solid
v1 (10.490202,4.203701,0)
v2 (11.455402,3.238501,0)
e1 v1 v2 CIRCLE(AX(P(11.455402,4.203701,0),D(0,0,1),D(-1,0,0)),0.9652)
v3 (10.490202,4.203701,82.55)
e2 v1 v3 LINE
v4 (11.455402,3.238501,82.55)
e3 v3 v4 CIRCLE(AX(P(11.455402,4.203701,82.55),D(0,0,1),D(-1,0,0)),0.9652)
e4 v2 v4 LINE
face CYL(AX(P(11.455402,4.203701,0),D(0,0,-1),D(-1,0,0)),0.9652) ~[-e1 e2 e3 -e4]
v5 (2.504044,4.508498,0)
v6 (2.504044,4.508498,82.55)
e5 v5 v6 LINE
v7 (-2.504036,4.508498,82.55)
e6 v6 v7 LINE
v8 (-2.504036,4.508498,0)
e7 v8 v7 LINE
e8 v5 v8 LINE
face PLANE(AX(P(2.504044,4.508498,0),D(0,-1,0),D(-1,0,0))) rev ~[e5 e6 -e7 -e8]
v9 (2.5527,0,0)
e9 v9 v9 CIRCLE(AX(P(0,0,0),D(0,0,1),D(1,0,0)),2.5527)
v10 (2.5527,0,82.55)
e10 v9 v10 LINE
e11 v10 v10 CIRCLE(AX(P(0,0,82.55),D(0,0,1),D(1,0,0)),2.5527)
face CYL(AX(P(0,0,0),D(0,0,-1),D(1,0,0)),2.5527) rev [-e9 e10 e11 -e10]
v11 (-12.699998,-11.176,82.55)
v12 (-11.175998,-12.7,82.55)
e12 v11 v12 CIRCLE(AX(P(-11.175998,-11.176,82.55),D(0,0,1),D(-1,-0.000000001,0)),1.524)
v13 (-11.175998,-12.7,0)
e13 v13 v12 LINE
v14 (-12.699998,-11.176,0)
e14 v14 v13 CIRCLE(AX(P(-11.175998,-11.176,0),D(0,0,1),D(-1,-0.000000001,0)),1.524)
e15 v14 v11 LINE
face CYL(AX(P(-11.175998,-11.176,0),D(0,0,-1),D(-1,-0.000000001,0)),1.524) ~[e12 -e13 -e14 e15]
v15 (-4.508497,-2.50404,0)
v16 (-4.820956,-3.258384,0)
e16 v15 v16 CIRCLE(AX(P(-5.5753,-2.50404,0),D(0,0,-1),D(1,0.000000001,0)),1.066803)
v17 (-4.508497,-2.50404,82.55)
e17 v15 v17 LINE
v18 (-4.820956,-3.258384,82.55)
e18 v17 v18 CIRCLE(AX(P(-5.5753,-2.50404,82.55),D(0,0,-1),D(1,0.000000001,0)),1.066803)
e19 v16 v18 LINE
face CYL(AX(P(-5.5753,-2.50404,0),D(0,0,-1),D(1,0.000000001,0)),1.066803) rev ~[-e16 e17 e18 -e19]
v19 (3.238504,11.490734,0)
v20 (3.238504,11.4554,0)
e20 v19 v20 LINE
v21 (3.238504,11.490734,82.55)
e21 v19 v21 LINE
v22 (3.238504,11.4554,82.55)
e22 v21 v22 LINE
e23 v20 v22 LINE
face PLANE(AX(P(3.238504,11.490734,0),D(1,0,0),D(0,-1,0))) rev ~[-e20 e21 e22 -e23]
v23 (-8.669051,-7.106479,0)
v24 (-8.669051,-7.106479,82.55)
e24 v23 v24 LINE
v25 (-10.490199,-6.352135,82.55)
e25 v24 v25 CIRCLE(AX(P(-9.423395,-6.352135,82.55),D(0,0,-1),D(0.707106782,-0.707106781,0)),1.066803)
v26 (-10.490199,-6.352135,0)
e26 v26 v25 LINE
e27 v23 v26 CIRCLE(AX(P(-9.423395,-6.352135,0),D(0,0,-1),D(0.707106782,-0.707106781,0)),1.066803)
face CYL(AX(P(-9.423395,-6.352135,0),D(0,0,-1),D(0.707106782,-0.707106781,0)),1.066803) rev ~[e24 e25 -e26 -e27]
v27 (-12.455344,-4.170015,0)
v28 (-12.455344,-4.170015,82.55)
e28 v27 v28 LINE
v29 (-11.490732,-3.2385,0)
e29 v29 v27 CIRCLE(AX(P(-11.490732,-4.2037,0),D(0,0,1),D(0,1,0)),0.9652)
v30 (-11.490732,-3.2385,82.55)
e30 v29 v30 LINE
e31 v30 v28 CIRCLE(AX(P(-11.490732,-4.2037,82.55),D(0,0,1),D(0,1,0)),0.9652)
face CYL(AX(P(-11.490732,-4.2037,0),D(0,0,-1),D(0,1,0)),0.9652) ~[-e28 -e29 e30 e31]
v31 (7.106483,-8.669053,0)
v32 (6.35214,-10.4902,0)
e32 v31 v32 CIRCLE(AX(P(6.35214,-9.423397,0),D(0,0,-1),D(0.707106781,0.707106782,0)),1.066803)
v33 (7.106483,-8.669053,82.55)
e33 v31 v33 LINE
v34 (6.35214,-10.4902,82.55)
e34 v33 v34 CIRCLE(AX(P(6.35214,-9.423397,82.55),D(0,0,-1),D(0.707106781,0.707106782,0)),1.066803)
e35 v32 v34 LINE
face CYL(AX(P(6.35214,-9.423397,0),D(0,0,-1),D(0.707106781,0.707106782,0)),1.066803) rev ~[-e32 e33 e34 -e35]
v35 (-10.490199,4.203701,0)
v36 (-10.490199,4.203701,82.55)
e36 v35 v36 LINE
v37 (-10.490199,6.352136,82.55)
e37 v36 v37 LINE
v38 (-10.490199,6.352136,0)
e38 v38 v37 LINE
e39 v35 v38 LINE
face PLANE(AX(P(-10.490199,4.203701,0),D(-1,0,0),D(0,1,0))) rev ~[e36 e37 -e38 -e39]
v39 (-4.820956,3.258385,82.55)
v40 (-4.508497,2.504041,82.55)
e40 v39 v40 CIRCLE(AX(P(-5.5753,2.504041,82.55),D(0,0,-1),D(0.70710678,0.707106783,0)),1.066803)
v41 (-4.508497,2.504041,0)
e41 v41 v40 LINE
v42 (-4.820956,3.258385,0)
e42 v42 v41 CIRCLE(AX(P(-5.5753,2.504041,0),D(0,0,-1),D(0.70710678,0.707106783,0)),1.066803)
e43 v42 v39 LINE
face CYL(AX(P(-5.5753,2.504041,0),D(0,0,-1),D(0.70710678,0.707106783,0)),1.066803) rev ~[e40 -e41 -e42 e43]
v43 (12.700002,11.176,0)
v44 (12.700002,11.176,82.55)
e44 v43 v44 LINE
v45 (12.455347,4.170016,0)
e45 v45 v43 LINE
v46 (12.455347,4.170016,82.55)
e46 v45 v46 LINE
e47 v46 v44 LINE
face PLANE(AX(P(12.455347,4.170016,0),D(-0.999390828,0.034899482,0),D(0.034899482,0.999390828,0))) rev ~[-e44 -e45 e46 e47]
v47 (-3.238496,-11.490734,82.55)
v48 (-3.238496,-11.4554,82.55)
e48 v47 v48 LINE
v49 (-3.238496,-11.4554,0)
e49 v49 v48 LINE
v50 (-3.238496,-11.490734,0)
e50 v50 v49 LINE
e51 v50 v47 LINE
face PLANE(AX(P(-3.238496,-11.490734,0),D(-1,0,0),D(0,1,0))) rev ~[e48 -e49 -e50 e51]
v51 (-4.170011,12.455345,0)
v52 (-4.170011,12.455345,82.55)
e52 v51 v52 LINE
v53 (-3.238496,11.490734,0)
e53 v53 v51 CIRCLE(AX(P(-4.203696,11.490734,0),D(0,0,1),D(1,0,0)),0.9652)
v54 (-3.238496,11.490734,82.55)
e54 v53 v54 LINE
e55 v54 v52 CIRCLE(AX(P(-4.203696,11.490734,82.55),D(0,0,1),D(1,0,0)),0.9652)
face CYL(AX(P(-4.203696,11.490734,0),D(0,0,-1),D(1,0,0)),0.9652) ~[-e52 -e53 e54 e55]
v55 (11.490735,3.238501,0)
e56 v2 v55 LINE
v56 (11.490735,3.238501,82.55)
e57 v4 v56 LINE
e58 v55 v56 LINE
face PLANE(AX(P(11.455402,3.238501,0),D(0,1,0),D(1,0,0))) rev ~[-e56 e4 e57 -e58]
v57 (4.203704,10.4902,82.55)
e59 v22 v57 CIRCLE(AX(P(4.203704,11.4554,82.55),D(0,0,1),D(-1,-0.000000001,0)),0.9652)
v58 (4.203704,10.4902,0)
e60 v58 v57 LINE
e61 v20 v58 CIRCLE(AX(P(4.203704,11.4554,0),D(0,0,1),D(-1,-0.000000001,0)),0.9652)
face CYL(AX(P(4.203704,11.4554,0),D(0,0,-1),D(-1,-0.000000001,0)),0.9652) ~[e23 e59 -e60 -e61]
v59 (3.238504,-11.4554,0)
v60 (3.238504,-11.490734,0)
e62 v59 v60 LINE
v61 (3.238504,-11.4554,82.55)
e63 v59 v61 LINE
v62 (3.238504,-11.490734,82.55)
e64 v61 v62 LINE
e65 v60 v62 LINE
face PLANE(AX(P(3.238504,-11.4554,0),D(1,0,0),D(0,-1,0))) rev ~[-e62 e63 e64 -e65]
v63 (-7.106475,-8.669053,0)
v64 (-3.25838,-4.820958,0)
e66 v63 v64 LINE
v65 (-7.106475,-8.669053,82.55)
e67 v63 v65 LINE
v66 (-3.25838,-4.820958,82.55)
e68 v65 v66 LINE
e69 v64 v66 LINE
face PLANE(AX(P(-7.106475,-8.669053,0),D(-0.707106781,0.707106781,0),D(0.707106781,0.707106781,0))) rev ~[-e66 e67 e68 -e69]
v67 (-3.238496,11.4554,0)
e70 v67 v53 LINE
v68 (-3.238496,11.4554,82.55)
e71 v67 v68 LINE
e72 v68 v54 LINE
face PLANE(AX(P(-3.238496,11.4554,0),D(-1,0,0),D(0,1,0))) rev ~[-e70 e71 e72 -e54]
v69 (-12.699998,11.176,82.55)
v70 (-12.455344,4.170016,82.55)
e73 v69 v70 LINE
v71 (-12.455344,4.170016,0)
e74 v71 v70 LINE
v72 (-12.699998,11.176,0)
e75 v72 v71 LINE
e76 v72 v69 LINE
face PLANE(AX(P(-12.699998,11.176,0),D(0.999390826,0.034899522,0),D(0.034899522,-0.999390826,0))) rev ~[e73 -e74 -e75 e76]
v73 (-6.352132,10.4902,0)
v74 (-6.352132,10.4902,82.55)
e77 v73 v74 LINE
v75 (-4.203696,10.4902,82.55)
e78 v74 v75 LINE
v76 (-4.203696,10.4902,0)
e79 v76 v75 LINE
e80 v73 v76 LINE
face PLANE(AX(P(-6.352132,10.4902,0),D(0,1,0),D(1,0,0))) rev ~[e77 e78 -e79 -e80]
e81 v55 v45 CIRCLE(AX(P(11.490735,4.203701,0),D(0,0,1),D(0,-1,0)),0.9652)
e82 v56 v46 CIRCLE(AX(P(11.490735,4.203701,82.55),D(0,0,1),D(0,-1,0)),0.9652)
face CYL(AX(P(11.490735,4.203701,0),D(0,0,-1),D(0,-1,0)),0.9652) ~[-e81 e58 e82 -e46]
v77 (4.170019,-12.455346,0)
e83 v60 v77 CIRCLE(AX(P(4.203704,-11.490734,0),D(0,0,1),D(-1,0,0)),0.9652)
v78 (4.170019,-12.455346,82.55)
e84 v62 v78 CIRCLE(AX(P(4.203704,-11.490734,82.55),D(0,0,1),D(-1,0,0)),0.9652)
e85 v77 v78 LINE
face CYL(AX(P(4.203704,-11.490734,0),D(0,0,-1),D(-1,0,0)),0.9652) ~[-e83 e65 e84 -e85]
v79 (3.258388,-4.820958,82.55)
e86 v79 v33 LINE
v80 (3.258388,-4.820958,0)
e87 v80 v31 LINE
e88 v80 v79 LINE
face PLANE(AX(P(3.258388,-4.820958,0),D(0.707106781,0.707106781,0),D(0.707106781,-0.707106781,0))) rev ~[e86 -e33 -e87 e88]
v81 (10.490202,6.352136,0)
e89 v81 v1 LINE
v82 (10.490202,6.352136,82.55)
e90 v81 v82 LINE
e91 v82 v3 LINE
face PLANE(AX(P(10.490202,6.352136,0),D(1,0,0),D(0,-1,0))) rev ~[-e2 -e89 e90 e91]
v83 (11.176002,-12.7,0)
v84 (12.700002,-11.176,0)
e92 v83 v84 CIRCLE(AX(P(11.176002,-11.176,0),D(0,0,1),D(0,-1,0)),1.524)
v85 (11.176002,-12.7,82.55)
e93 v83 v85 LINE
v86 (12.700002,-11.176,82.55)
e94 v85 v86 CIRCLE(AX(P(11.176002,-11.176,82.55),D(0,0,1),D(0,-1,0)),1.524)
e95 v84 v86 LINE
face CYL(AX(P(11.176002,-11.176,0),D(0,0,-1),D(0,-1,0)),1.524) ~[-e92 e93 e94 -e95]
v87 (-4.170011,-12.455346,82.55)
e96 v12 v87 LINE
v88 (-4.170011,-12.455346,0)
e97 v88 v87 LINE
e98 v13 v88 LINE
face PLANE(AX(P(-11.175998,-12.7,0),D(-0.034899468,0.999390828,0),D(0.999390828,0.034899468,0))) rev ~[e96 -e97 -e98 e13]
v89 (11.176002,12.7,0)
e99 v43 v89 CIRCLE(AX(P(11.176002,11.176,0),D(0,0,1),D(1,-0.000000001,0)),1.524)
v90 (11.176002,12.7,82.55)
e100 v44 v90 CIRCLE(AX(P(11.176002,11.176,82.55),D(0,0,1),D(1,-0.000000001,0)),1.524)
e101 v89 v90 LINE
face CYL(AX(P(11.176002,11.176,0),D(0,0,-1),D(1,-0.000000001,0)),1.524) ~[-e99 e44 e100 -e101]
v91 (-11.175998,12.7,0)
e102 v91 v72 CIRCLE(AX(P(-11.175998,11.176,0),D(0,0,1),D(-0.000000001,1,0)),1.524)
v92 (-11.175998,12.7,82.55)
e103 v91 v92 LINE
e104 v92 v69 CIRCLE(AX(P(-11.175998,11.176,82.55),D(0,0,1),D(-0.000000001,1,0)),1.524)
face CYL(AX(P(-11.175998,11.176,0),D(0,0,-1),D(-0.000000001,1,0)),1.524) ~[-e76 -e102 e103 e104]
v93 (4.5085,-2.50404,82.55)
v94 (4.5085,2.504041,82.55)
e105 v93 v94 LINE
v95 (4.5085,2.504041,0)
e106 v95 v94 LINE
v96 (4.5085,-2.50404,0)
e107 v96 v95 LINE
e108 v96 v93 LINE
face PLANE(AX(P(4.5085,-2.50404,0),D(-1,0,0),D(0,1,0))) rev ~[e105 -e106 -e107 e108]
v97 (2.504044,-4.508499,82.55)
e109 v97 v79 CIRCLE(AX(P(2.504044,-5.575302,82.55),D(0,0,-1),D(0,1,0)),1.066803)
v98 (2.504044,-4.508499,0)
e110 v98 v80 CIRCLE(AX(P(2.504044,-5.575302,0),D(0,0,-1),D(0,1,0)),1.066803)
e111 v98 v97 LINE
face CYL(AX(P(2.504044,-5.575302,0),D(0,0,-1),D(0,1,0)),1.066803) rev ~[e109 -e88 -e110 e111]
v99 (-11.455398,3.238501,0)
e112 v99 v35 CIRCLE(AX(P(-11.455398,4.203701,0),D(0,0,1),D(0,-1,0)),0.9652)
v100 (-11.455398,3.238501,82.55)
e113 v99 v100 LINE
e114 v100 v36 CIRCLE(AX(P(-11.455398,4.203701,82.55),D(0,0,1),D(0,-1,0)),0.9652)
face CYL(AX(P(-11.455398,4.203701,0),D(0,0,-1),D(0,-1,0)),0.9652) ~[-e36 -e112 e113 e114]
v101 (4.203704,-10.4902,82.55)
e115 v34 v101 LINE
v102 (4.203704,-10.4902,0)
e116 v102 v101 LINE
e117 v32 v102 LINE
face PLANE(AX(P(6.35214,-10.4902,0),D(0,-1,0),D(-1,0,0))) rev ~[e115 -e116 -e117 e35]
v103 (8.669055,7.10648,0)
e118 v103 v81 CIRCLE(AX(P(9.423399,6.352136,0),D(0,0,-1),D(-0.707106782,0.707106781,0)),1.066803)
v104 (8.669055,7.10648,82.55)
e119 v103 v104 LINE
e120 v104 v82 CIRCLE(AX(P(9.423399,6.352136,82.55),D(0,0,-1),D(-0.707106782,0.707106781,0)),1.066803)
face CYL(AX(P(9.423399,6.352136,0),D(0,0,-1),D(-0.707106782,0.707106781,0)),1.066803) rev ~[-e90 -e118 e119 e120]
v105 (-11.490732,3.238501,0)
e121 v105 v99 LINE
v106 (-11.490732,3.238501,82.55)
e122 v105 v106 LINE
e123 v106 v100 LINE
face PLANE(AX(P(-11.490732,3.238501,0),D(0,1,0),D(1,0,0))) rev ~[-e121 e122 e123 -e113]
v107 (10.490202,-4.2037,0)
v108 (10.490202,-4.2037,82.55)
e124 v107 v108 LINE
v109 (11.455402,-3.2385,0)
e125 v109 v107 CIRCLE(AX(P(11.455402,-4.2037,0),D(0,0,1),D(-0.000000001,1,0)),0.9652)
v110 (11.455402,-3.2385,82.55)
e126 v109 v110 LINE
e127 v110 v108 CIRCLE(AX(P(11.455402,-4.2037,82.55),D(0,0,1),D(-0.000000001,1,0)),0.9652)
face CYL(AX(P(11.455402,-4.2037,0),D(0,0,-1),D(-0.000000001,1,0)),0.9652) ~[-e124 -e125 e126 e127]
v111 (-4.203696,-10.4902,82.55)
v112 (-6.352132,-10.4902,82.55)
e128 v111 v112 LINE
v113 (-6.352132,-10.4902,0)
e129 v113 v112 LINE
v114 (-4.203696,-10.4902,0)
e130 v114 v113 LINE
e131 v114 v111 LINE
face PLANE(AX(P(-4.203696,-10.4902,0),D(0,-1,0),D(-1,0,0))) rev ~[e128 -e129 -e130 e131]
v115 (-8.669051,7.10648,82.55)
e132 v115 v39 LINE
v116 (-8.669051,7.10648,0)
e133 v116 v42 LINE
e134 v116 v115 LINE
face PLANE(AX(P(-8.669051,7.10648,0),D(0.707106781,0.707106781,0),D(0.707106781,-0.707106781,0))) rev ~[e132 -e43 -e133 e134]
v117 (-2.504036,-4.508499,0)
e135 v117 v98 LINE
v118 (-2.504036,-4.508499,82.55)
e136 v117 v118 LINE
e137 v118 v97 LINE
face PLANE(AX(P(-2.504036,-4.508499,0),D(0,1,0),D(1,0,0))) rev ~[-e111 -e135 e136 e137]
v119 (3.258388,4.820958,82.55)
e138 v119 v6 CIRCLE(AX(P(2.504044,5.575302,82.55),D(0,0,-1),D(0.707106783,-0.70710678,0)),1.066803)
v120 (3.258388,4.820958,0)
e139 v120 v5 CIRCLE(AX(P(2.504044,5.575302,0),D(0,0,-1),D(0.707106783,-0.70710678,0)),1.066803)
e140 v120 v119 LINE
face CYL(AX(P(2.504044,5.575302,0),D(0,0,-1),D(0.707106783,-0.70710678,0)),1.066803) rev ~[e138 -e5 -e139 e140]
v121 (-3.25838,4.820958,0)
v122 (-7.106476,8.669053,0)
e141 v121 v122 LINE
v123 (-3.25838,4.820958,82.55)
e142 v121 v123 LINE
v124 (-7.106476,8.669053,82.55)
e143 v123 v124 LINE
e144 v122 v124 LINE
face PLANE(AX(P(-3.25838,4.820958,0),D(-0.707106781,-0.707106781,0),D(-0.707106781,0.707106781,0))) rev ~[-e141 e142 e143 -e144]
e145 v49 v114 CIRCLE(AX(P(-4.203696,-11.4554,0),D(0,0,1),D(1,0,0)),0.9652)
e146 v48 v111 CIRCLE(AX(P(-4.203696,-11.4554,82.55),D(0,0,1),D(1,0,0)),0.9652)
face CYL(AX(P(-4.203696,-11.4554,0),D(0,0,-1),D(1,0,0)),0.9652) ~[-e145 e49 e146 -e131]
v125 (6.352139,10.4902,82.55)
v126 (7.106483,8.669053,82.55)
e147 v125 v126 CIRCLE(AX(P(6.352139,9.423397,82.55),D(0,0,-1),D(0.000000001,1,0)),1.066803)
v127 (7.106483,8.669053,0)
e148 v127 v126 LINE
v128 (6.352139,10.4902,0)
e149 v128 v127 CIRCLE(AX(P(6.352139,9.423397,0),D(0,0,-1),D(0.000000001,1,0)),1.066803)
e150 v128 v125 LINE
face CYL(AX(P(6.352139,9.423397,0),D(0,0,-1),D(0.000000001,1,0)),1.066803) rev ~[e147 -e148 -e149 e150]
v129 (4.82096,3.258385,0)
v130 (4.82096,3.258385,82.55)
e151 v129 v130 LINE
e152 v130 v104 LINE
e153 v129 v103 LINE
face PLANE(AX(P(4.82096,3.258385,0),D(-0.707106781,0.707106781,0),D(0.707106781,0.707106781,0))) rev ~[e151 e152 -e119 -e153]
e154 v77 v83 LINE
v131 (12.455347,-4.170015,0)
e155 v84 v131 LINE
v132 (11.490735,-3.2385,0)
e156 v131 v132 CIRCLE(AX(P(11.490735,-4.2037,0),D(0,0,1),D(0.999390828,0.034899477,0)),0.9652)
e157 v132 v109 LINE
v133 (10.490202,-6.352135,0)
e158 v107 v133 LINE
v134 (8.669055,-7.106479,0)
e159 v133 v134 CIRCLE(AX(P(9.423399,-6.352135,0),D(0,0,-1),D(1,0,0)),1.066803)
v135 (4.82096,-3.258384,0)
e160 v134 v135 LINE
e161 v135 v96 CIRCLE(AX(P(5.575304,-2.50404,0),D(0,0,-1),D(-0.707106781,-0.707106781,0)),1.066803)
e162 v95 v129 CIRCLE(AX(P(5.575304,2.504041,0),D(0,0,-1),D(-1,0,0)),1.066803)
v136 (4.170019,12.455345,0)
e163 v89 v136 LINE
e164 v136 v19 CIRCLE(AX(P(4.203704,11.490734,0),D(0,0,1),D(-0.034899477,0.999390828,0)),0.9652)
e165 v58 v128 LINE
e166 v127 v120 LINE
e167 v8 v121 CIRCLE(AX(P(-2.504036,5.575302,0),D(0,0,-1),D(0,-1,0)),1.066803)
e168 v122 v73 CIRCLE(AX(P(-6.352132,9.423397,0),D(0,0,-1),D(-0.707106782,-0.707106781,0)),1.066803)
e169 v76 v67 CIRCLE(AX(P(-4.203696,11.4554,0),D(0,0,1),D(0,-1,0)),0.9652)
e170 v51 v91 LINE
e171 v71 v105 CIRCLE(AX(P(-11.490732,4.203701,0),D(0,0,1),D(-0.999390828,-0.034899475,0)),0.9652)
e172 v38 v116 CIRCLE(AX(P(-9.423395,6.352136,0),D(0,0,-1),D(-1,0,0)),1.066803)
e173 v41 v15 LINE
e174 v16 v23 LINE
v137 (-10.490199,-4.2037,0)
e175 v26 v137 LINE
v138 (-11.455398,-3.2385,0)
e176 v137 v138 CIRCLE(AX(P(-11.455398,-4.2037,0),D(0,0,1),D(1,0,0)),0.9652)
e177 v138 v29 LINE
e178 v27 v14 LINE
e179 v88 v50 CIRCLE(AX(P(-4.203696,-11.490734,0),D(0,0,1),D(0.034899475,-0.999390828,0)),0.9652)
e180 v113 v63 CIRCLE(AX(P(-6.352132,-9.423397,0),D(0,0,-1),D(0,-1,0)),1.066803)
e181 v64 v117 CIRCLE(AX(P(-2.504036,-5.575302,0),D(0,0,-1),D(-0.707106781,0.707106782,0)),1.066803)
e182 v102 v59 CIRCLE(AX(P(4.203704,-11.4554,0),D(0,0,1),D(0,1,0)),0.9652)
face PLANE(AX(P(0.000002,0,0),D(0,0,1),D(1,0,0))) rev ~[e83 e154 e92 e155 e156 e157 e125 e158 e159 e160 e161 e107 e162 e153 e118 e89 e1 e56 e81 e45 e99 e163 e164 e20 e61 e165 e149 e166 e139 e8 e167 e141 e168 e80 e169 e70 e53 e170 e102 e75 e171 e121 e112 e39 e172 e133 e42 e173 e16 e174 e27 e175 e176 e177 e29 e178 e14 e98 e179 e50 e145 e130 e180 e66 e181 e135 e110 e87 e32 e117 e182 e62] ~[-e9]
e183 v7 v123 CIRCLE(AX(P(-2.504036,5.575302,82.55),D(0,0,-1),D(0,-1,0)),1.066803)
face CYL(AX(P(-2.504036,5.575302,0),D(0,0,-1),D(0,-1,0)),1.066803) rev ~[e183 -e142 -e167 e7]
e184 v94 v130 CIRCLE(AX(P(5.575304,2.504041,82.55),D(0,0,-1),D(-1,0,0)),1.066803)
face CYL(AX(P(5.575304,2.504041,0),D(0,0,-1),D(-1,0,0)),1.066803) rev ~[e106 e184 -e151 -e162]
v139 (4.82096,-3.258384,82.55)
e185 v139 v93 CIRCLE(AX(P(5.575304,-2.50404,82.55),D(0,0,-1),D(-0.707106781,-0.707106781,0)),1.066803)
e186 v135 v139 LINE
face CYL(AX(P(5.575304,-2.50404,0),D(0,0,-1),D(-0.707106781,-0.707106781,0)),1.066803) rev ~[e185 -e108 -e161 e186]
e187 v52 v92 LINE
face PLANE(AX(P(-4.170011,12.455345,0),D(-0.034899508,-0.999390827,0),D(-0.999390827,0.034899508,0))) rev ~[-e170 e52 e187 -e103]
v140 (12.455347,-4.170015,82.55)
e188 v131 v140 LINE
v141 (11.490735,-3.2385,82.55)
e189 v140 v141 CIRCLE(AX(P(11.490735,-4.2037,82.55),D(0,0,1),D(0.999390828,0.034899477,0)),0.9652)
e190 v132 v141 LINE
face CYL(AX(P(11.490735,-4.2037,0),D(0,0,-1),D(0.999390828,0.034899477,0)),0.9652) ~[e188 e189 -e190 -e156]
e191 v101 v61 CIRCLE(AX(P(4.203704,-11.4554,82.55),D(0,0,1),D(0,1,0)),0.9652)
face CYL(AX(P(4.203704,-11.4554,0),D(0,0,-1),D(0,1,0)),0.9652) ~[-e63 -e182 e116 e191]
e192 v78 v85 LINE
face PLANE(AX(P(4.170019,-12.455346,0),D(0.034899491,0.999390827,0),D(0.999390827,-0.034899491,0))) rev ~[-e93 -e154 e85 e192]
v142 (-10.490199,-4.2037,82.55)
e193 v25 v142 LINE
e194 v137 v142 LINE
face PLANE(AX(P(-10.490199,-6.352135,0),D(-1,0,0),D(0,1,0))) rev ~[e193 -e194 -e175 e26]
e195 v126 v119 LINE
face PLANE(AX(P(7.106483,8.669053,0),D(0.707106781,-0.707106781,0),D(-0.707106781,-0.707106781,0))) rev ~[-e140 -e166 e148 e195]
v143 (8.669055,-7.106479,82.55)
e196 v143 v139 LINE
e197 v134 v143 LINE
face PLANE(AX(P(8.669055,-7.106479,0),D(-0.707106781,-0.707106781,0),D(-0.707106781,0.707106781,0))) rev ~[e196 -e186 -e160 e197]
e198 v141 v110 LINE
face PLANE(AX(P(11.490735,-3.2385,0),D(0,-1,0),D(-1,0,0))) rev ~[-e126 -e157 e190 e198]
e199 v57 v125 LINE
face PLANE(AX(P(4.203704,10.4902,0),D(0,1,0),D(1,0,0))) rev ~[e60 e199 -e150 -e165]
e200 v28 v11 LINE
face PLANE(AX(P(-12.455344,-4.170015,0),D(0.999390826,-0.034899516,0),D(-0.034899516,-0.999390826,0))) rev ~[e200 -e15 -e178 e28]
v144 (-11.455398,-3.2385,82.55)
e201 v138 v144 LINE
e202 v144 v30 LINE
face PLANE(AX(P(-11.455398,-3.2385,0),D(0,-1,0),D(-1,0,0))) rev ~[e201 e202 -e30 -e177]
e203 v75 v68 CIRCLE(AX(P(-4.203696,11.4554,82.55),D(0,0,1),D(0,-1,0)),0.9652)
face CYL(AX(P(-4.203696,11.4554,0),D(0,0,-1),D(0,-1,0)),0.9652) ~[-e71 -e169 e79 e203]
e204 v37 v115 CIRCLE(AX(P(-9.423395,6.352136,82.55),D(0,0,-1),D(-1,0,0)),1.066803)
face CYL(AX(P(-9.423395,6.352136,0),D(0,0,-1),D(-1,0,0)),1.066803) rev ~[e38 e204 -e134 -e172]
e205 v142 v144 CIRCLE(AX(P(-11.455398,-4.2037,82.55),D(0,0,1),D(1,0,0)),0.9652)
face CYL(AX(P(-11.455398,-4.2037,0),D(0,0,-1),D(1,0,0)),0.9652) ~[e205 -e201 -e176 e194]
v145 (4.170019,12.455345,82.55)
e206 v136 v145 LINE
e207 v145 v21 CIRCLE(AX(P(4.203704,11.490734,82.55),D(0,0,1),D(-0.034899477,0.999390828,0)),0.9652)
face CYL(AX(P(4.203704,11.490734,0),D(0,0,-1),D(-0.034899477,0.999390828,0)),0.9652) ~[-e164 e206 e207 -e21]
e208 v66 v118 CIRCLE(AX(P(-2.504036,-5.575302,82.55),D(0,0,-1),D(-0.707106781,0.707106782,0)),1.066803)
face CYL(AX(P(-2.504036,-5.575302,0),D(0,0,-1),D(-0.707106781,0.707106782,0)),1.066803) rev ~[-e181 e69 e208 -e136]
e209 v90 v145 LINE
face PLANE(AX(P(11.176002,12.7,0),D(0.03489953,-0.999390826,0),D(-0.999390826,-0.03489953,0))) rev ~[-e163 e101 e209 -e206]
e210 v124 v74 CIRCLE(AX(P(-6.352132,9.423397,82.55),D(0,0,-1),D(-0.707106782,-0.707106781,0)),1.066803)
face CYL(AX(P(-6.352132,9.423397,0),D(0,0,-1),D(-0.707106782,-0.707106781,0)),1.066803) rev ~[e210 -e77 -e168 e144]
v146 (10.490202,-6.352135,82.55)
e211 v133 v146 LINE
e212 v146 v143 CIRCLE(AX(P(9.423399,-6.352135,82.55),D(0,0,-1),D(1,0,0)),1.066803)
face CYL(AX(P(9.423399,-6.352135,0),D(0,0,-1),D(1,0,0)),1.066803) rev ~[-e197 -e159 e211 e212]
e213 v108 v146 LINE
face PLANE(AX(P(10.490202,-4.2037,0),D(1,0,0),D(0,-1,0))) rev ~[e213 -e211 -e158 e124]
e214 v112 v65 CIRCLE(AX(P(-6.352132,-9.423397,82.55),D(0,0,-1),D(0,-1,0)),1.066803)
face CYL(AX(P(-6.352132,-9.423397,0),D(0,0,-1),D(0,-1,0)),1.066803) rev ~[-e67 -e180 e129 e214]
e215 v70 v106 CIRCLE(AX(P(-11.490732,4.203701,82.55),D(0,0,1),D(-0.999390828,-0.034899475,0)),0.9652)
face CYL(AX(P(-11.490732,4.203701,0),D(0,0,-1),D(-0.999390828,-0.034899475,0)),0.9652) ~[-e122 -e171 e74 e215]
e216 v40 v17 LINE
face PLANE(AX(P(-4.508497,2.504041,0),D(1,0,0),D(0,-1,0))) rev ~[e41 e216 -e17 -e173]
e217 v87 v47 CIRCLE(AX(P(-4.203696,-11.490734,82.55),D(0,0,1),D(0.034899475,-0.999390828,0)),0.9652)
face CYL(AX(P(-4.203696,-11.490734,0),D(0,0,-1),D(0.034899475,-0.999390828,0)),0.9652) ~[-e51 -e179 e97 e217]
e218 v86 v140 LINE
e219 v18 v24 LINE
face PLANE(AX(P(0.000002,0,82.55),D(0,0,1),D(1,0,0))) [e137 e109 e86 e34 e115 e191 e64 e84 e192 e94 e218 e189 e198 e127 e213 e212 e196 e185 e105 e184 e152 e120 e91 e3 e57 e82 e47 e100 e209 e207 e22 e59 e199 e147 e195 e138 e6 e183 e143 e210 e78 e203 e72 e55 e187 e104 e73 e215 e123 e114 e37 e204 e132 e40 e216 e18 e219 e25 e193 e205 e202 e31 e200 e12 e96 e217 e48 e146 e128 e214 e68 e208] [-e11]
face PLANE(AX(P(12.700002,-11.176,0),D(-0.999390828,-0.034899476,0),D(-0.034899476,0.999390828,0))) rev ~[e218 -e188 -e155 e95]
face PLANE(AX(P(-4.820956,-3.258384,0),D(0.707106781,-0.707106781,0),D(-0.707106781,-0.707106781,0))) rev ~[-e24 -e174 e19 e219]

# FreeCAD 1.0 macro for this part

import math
import FreeCAD as App
import Part
import Sketcher
Q = App.Units.Quantity

doc = App.newDocument("Part")
body = doc.addObject("PartDesign::Body", "Body")

sketch1 = body.newObject("Sketcher::SketchObject", "Sketch")
sketch1.AttachmentSupport = (doc.getObject("XY_Plane"), [""])
sketch1.MapMode = "FlatFace"
sketch1.addGeometry(Part.LineSegment(App.Vector(3.239, -11.455, 0), App.Vector(3.239, -11.491, 0)), False)
sketch1.addGeometry(Part.ArcOfCircle(Part.Circle(App.Vector(4.204, -11.491, 0), App.Vector(0, 0, 1), 0.965), math.radians(180), math.radians(268)), False)
sketch1.addGeometry(Part.LineSegment(App.Vector(4.17, -12.455, 0), App.Vector(11.176, -12.7, 0)), False)
sketch1.addGeometry(Part.ArcOfCircle(Part.Circle(App.Vector(11.176, -11.176, 0), App.Vector(0, 0, 1), 1.524), math.radians(-90), math.radians(0)), False)
sketch1.addGeometry(Part.LineSegment(App.Vector(12.7, -11.176, 0), App.Vector(12.455, -4.17, 0)), False)
sketch1.addGeometry(Part.ArcOfCircle(Part.Circle(App.Vector(11.491, -4.204, 0), App.Vector(0, 0, 1), 0.965), math.radians(2), math.radians(90)), False)
sketch1.addGeometry(Part.LineSegment(App.Vector(11.491, -3.238, 0), App.Vector(11.455, -3.238, 0)), False)
sketch1.addGeometry(Part.ArcOfCircle(Part.Circle(App.Vector(11.455, -4.204, 0), App.Vector(0, 0, 1), 0.965), math.radians(90), math.radians(180)), False)
sketch1.addGeometry(Part.LineSegment(App.Vector(10.49, -4.204, 0), App.Vector(10.49, -6.352, 0)), False)
sketch1.addGeometry(Part.ArcOfCircle(Part.Circle(App.Vector(9.423, -6.352, 0), App.Vector(0, 0, 1), 1.067), math.radians(-135), math.radians(0)), False)
sketch1.addGeometry(Part.LineSegment(App.Vector(8.669, -7.106, 0), App.Vector(4.821, -3.258, 0)), False)
sketch1.addGeometry(Part.ArcOfCircle(Part.Circle(App.Vector(5.575, -2.504, 0), App.Vector(0, 0, 1), 1.067), math.radians(180), math.radians(225)), False)
sketch1.addGeometry(Part.LineSegment(App.Vector(4.509, -2.504, 0), App.Vector(4.509, 2.504, 0)), False)
sketch1.addGeometry(Part.ArcOfCircle(Part.Circle(App.Vector(5.575, 2.504, 0), App.Vector(0, 0, 1), 1.067), math.radians(135), math.radians(180)), False)
sketch1.addGeometry(Part.LineSegment(App.Vector(4.821, 3.258, 0), App.Vector(8.669, 7.106, 0)), False)
sketch1.addGeometry(Part.ArcOfCircle(Part.Circle(App.Vector(9.423, 6.352, 0), App.Vector(0, 0, 1), 1.067), math.radians(0), math.radians(135)), False)
sketch1.addGeometry(Part.LineSegment(App.Vector(10.49, 6.352, 0), App.Vector(10.49, 4.204, 0)), False)
sketch1.addGeometry(Part.ArcOfCircle(Part.Circle(App.Vector(11.455, 4.204, 0), App.Vector(0, 0, 1), 0.965), math.radians(180), math.radians(270)), False)
sketch1.addGeometry(Part.LineSegment(App.Vector(11.455, 3.239, 0), App.Vector(11.491, 3.239, 0)), False)
sketch1.addGeometry(Part.ArcOfCircle(Part.Circle(App.Vector(11.491, 4.204, 0), App.Vector(0, 0, 1), 0.965), math.radians(-90), math.radians(-2)), False)
sketch1.addGeometry(Part.LineSegment(App.Vector(12.455, 4.17, 0), App.Vector(12.7, 11.176, 0)), False)
sketch1.addGeometry(Part.ArcOfCircle(Part.Circle(App.Vector(11.176, 11.176, 0), App.Vector(0, 0, 1), 1.524), math.radians(0), math.radians(90)), False)
sketch1.addGeometry(Part.LineSegment(App.Vector(11.176, 12.7, 0), App.Vector(4.17, 12.455, 0)), False)
sketch1.addGeometry(Part.ArcOfCircle(Part.Circle(App.Vector(4.204, 11.491, 0), App.Vector(0, 0, 1), 0.965), math.radians(92), math.radians(180)), False)
sketch1.addGeometry(Part.LineSegment(App.Vector(3.239, 11.491, 0), App.Vector(3.239, 11.455, 0)), False)
sketch1.addGeometry(Part.ArcOfCircle(Part.Circle(App.Vector(4.204, 11.455, 0), App.Vector(0, 0, 1), 0.965), math.radians(-180), math.radians(-90)), False)
sketch1.addGeometry(Part.LineSegment(App.Vector(4.204, 10.49, 0), App.Vector(6.352, 10.49, 0)), False)
sketch1.addGeometry(Part.ArcOfCircle(Part.Circle(App.Vector(6.352, 9.423, 0), App.Vector(0, 0, 1), 1.067), math.radians(-45), math.radians(90)), False)
sketch1.addGeometry(Part.LineSegment(App.Vector(7.106, 8.669, 0), App.Vector(3.258, 4.821, 0)), False)
sketch1.addGeometry(Part.ArcOfCircle(Part.Circle(App.Vector(2.504, 5.575, 0), App.Vector(0, 0, 1), 1.067), math.radians(-90), math.radians(-45)), False)
sketch1.addGeometry(Part.LineSegment(App.Vector(2.504, 4.508, 0), App.Vector(-2.504, 4.508, 0)), False)
sketch1.addGeometry(Part.ArcOfCircle(Part.Circle(App.Vector(-2.504, 5.575, 0), App.Vector(0, 0, 1), 1.067), math.radians(-135), math.radians(-90)), False)
sketch1.addGeometry(Part.LineSegment(App.Vector(-3.258, 4.821, 0), App.Vector(-7.106, 8.669, 0)), False)
sketch1.addGeometry(Part.ArcOfCircle(Part.Circle(App.Vector(-6.352, 9.423, 0), App.Vector(0, 0, 1), 1.067), math.radians(90), math.radians(225)), False)
sketch1.addGeometry(Part.LineSegment(App.Vector(-6.352, 10.49, 0), App.Vector(-4.204, 10.49, 0)), False)
sketch1.addGeometry(Part.ArcOfCircle(Part.Circle(App.Vector(-4.204, 11.455, 0), App.Vector(0, 0, 1), 0.965), math.radians(-90), math.radians(0)), False)
sketch1.addGeometry(Part.LineSegment(App.Vector(-3.238, 11.455, 0), App.Vector(-3.238, 11.491, 0)), False)
sketch1.addGeometry(Part.ArcOfCircle(Part.Circle(App.Vector(-4.204, 11.491, 0), App.Vector(0, 0, 1), 0.965), math.radians(0), math.radians(88)), False)
sketch1.addGeometry(Part.LineSegment(App.Vector(-4.17, 12.455, 0), App.Vector(-11.176, 12.7, 0)), False)
sketch1.addGeometry(Part.ArcOfCircle(Part.Circle(App.Vector(-11.176, 11.176, 0), App.Vector(0, 0, 1), 1.524), math.radians(90), math.radians(180)), False)
sketch1.addGeometry(Part.LineSegment(App.Vector(-12.7, 11.176, 0), App.Vector(-12.455, 4.17, 0)), False)
sketch1.addGeometry(Part.ArcOfCircle(Part.Circle(App.Vector(-11.491, 4.204, 0), App.Vector(0, 0, 1), 0.965), math.radians(-178), math.radians(-90)), False)
sketch1.addGeometry(Part.LineSegment(App.Vector(-11.491, 3.239, 0), App.Vector(-11.455, 3.239, 0)), False)
sketch1.addGeometry(Part.ArcOfCircle(Part.Circle(App.Vector(-11.455, 4.204, 0), App.Vector(0, 0, 1), 0.965), math.radians(-90), math.radians(0)), False)
sketch1.addGeometry(Part.LineSegment(App.Vector(-10.49, 4.204, 0), App.Vector(-10.49, 6.352, 0)), False)
sketch1.addGeometry(Part.ArcOfCircle(Part.Circle(App.Vector(-9.423, 6.352, 0), App.Vector(0, 0, 1), 1.067), math.radians(45), math.radians(180)), False)
sketch1.addGeometry(Part.LineSegment(App.Vector(-8.669, 7.106, 0), App.Vector(-4.821, 3.258, 0)), False)
sketch1.addGeometry(Part.ArcOfCircle(Part.Circle(App.Vector(-5.575, 2.504, 0), App.Vector(0, 0, 1), 1.067), math.radians(0), math.radians(45)), False)
sketch1.addGeometry(Part.LineSegment(App.Vector(-4.508, 2.504, 0), App.Vector(-4.508, -2.504, 0)), False)
sketch1.addGeometry(Part.ArcOfCircle(Part.Circle(App.Vector(-5.575, -2.504, 0), App.Vector(0, 0, 1), 1.067), math.radians(-45), math.radians(0)), False)
sketch1.addGeometry(Part.LineSegment(App.Vector(-4.821, -3.258, 0), App.Vector(-8.669, -7.106, 0)), False)
sketch1.addGeometry(Part.ArcOfCircle(Part.Circle(App.Vector(-9.423, -6.352, 0), App.Vector(0, 0, 1), 1.067), math.radians(180), math.radians(315)), False)
sketch1.addGeometry(Part.LineSegment(App.Vector(-10.49, -6.352, 0), App.Vector(-10.49, -4.204, 0)), False)
sketch1.addGeometry(Part.ArcOfCircle(Part.Circle(App.Vector(-11.455, -4.204, 0), App.Vector(0, 0, 1), 0.965), math.radians(0), math.radians(90)), False)
sketch1.addGeometry(Part.LineSegment(App.Vector(-11.455, -3.238, 0), App.Vector(-11.491, -3.238, 0)), False)
sketch1.addGeometry(Part.ArcOfCircle(Part.Circle(App.Vector(-11.491, -4.204, 0), App.Vector(0, 0, 1), 0.965), math.radians(90), math.radians(178)), False)
sketch1.addGeometry(Part.LineSegment(App.Vector(-12.455, -4.17, 0), App.Vector(-12.7, -11.176, 0)), False)
sketch1.addGeometry(Part.ArcOfCircle(Part.Circle(App.Vector(-11.176, -11.176, 0), App.Vector(0, 0, 1), 1.524), math.radians(-180), math.radians(-90)), False)
sketch1.addGeometry(Part.LineSegment(App.Vector(-11.176, -12.7, 0), App.Vector(-4.17, -12.455, 0)), False)
sketch1.addGeometry(Part.ArcOfCircle(Part.Circle(App.Vector(-4.204, -11.491, 0), App.Vector(0, 0, 1), 0.965), math.radians(-88), math.radians(0)), False)
sketch1.addGeometry(Part.LineSegment(App.Vector(-3.238, -11.491, 0), App.Vector(-3.238, -11.455, 0)), False)
sketch1.addGeometry(Part.ArcOfCircle(Part.Circle(App.Vector(-4.204, -11.455, 0), App.Vector(0, 0, 1), 0.965), math.radians(0), math.radians(90)), False)
sketch1.addGeometry(Part.LineSegment(App.Vector(-4.204, -10.49, 0), App.Vector(-6.352, -10.49, 0)), False)
sketch1.addGeometry(Part.ArcOfCircle(Part.Circle(App.Vector(-6.352, -9.423, 0), App.Vector(0, 0, 1), 1.067), math.radians(135), math.radians(270)), False)
sketch1.addGeometry(Part.LineSegment(App.Vector(-7.106, -8.669, 0), App.Vector(-3.258, -4.821, 0)), False)
sketch1.addGeometry(Part.ArcOfCircle(Part.Circle(App.Vector(-2.504, -5.575, 0), App.Vector(0, 0, 1), 1.067), math.radians(90), math.radians(135)), False)
sketch1.addGeometry(Part.LineSegment(App.Vector(-2.504, -4.508, 0), App.Vector(2.504, -4.508, 0)), False)
sketch1.addGeometry(Part.ArcOfCircle(Part.Circle(App.Vector(2.504, -5.575, 0), App.Vector(0, 0, 1), 1.067), math.radians(45), math.radians(90)), False)
sketch1.addGeometry(Part.LineSegment(App.Vector(3.258, -4.821, 0), App.Vector(7.106, -8.669, 0)), False)
sketch1.addGeometry(Part.ArcOfCircle(Part.Circle(App.Vector(6.352, -9.423, 0), App.Vector(0, 0, 1), 1.067), math.radians(-90), math.radians(45)), False)
sketch1.addGeometry(Part.LineSegment(App.Vector(6.352, -10.49, 0), App.Vector(4.204, -10.49, 0)), False)
sketch1.addGeometry(Part.ArcOfCircle(Part.Circle(App.Vector(4.204, -11.455, 0), App.Vector(0, 0, 1), 0.965), math.radians(90), math.radians(180)), False)
sketch1.addGeometry(Part.Circle(App.Vector(0, 0, 0), App.Vector(0, 0, 1), 2.553), False)
sketch1.addConstraint(Sketcher.Constraint("Tangent", 0, 2, 1, 1))
sketch1.addConstraint(Sketcher.Constraint("Tangent", 1, 2, 2, 1))
sketch1.addConstraint(Sketcher.Constraint("Coincident", 2, 2, 3, 1))
sketch1.addConstraint(Sketcher.Constraint("Coincident", 3, 2, 4, 1))
sketch1.addConstraint(Sketcher.Constraint("Tangent", 4, 2, 5, 1))
sketch1.addConstraint(Sketcher.Constraint("Tangent", 5, 2, 6, 1))
sketch1.addConstraint(Sketcher.Constraint("Tangent", 6, 2, 7, 1))
sketch1.addConstraint(Sketcher.Constraint("Tangent", 7, 2, 8, 1))
sketch1.addConstraint(Sketcher.Constraint("Tangent", 8, 2, 9, 2))
sketch1.addConstraint(Sketcher.Constraint("Tangent", 9, 1, 10, 1))
sketch1.addConstraint(Sketcher.Constraint("Tangent", 10, 2, 11, 2))
sketch1.addConstraint(Sketcher.Constraint("Tangent", 11, 1, 12, 1))
sketch1.addConstraint(Sketcher.Constraint("Tangent", 12, 2, 13, 2))
sketch1.addConstraint(Sketcher.Constraint("Tangent", 13, 1, 14, 1))
sketch1.addConstraint(Sketcher.Constraint("Tangent", 14, 2, 15, 2))
sketch1.addConstraint(Sketcher.Constraint("Tangent", 15, 1, 16, 1))
sketch1.addConstraint(Sketcher.Constraint("Tangent", 16, 2, 17, 1))
sketch1.addConstraint(Sketcher.Constraint("Tangent", 17, 2, 18, 1))
sketch1.addConstraint(Sketcher.Constraint("Tangent", 18, 2, 19, 1))
sketch1.addConstraint(Sketcher.Constraint("Tangent", 19, 2, 20, 1))
sketch1.addConstraint(Sketcher.Constraint("Coincident", 20, 2, 21, 1))
sketch1.addConstraint(Sketcher.Constraint("Coincident", 21, 2, 22, 1))
sketch1.addConstraint(Sketcher.Constraint("Tangent", 22, 2, 23, 1))
sketch1.addConstraint(Sketcher.Constraint("Tangent", 23, 2, 24, 1))
sketch1.addConstraint(Sketcher.Constraint("Tangent", 24, 2, 25, 1))
sketch1.addConstraint(Sketcher.Constraint("Tangent", 25, 2, 26, 1))
sketch1.addConstraint(Sketcher.Constraint("Tangent", 26, 2, 27, 2))
sketch1.addConstraint(Sketcher.Constraint("Tangent", 27, 1, 28, 1))
sketch1.addConstraint(Sketcher.Constraint("Tangent", 28, 2, 29, 2))
sketch1.addConstraint(Sketcher.Constraint("Tangent", 29, 1, 30, 1))
sketch1.addConstraint(Sketcher.Constraint("Tangent", 30, 2, 31, 2))
sketch1.addConstraint(Sketcher.Constraint("Tangent", 31, 1, 32, 1))
sketch1.addConstraint(Sketcher.Constraint("Tangent", 32, 2, 33, 2))
sketch1.addConstraint(Sketcher.Constraint("Tangent", 33, 1, 34, 1))
sketch1.addConstraint(Sketcher.Constraint("Tangent", 34, 2, 35, 1))
sketch1.addConstraint(Sketcher.Constraint("Tangent", 35, 2, 36, 1))
sketch1.addConstraint(Sketcher.Constraint("Tangent", 36, 2, 37, 1))
sketch1.addConstraint(Sketcher.Constraint("Tangent", 37, 2, 38, 1))
sketch1.addConstraint(Sketcher.Constraint("Coincident", 38, 2, 39, 1))
sketch1.addConstraint(Sketcher.Constraint("Coincident", 39, 2, 40, 1))
sketch1.addConstraint(Sketcher.Constraint("Tangent", 40, 2, 41, 1))
sketch1.addConstraint(Sketcher.Constraint("Tangent", 41, 2, 42, 1))
sketch1.addConstraint(Sketcher.Constraint("Tangent", 42, 2, 43, 1))
sketch1.addConstraint(Sketcher.Constraint("Tangent", 43, 2, 44, 1))
sketch1.addConstraint(Sketcher.Constraint("Tangent", 44, 2, 45, 2))
sketch1.addConstraint(Sketcher.Constraint("Tangent", 45, 1, 46, 1))
sketch1.addConstraint(Sketcher.Constraint("Tangent", 46, 2, 47, 2))
sketch1.addConstraint(Sketcher.Constraint("Tangent", 47, 1, 48, 1))
sketch1.addConstraint(Sketcher.Constraint("Tangent", 48, 2, 49, 2))
sketch1.addConstraint(Sketcher.Constraint("Tangent", 49, 1, 50, 1))
sketch1.addConstraint(Sketcher.Constraint("Tangent", 50, 2, 51, 2))
sketch1.addConstraint(Sketcher.Constraint("Tangent", 51, 1, 52, 1))
sketch1.addConstraint(Sketcher.Constraint("Tangent", 52, 2, 53, 1))
sketch1.addConstraint(Sketcher.Constraint("Tangent", 53, 2, 54, 1))
sketch1.addConstraint(Sketcher.Constraint("Tangent", 54, 2, 55, 1))
sketch1.addConstraint(Sketcher.Constraint("Tangent", 55, 2, 56, 1))
sketch1.addConstraint(Sketcher.Constraint("Coincident", 56, 2, 57, 1))
sketch1.addConstraint(Sketcher.Constraint("Coincident", 57, 2, 58, 1))
sketch1.addConstraint(Sketcher.Constraint("Tangent", 58, 2, 59, 1))
sketch1.addConstraint(Sketcher.Constraint("Tangent", 59, 2, 60, 1))
sketch1.addConstraint(Sketcher.Constraint("Tangent", 60, 2, 61, 1))
sketch1.addConstraint(Sketcher.Constraint("Tangent", 61, 2, 62, 1))
sketch1.addConstraint(Sketcher.Constraint("Tangent", 62, 2, 63, 2))
sketch1.addConstraint(Sketcher.Constraint("Tangent", 63, 1, 64, 1))
sketch1.addConstraint(Sketcher.Constraint("Tangent", 64, 2, 65, 2))
sketch1.addConstraint(Sketcher.Constraint("Tangent", 65, 1, 66, 1))
sketch1.addConstraint(Sketcher.Constraint("Tangent", 66, 2, 67, 2))
sketch1.addConstraint(Sketcher.Constraint("Tangent", 67, 1, 68, 1))
sketch1.addConstraint(Sketcher.Constraint("Tangent", 68, 2, 69, 2))
sketch1.addConstraint(Sketcher.Constraint("Tangent", 69, 1, 70, 1))
sketch1.addConstraint(Sketcher.Constraint("Tangent", 70, 2, 71, 1))
sketch1.addConstraint(Sketcher.Constraint("Tangent", 71, 2, 0, 1))
sketch1.addConstraint(Sketcher.Constraint("Vertical", 0))
sketch1.addConstraint(Sketcher.Constraint("Horizontal", 6))
sketch1.addConstraint(Sketcher.Constraint("Vertical", 8))
sketch1.addConstraint(Sketcher.Constraint("Vertical", 12))
sketch1.addConstraint(Sketcher.Constraint("Vertical", 16))
sketch1.addConstraint(Sketcher.Constraint("Horizontal", 18))
sketch1.addConstraint(Sketcher.Constraint("Vertical", 24))
sketch1.addConstraint(Sketcher.Constraint("Horizontal", 26))
sketch1.addConstraint(Sketcher.Constraint("Horizontal", 30))
sketch1.addConstraint(Sketcher.Constraint("Horizontal", 34))
sketch1.addConstraint(Sketcher.Constraint("Vertical", 36))
sketch1.addConstraint(Sketcher.Constraint("Horizontal", 42))
sketch1.addConstraint(Sketcher.Constraint("Vertical", 44))
sketch1.addConstraint(Sketcher.Constraint("Vertical", 48))
sketch1.addConstraint(Sketcher.Constraint("Vertical", 52))
sketch1.addConstraint(Sketcher.Constraint("Horizontal", 54))
sketch1.addConstraint(Sketcher.Constraint("Vertical", 60))
sketch1.addConstraint(Sketcher.Constraint("Horizontal", 62))
sketch1.addConstraint(Sketcher.Constraint("Horizontal", 66))
sketch1.addConstraint(Sketcher.Constraint("Horizontal", 70))
sketch1.addConstraint(Sketcher.Constraint("Coincident", 72, 3, -1, 1))
sketch1.addConstraint(Sketcher.Constraint("Equal", 1, 5))
sketch1.addConstraint(Sketcher.Constraint("Equal", 5, 7))
sketch1.addConstraint(Sketcher.Constraint("Equal", 9, 11))
sketch1.addConstraint(Sketcher.Constraint("Equal", 11, 13))
sketch1.addConstraint(Sketcher.Constraint("Equal", 13, 15))
sketch1.addConstraint(Sketcher.Constraint("Equal", 7, 17))
sketch1.addConstraint(Sketcher.Constraint("Equal", 17, 19))
sketch1.addConstraint(Sketcher.Constraint("Equal", 3, 21))
sketch1.addConstraint(Sketcher.Constraint("Equal", 19, 23))
sketch1.addConstraint(Sketcher.Constraint("Equal", 23, 25))
sketch1.addConstraint(Sketcher.Constraint("Equal", 15, 27))
sketch1.addConstraint(Sketcher.Constraint("Equal", 27, 29))
sketch1.addConstraint(Sketcher.Constraint("Equal", 29, 31))
sketch1.addConstraint(Sketcher.Constraint("Equal", 31, 33))
sketch1.addConstraint(Sketcher.Constraint("Equal", 25, 35))
sketch1.addConstraint(Sketcher.Constraint("Equal", 35, 37))
sketch1.addConstraint(Sketcher.Constraint("Equal", 21, 39))
sketch1.addConstraint(Sketcher.Constraint("Equal", 37, 41))
sketch1.addConstraint(Sketcher.Constraint("Equal", 41, 43))
sketch1.addConstraint(Sketcher.Constraint("Equal", 33, 45))
sketch1.addConstraint(Sketcher.Constraint("Equal", 45, 47))
sketch1.addConstraint(Sketcher.Constraint("Equal", 47, 49))
sketch1.addConstraint(Sketcher.Constraint("Equal", 49, 51))
sketch1.addConstraint(Sketcher.Constraint("Equal", 43, 53))
sketch1.addConstraint(Sketcher.Constraint("Equal", 53, 55))
sketch1.addConstraint(Sketcher.Constraint("Equal", 39, 57))
sketch1.addConstraint(Sketcher.Constraint("Equal", 55, 59))
sketch1.addConstraint(Sketcher.Constraint("Equal", 59, 61))
sketch1.addConstraint(Sketcher.Constraint("Equal", 51, 63))
sketch1.addConstraint(Sketcher.Constraint("Equal", 63, 65))
sketch1.addConstraint(Sketcher.Constraint("Equal", 65, 67))
sketch1.addConstraint(Sketcher.Constraint("Equal", 67, 69))
sketch1.addConstraint(Sketcher.Constraint("Equal", 61, 71))
sketch1.addConstraint(Sketcher.Constraint("Symmetric", 1, 3, 37, 3, -1, 1))
sketch1.addConstraint(Sketcher.Constraint("Symmetric", 3, 3, 39, 3, -1, 1))
sketch1.addConstraint(Sketcher.Constraint("Symmetric", 5, 3, 41, 3, -1, 1))
sketch1.addConstraint(Sketcher.Constraint("Symmetric", 9, 3, 45, 3, -1, 1))
sketch1.addConstraint(Sketcher.Constraint("Symmetric", 11, 3, 47, 3, -1, 1))
sketch1.addConstraint(Sketcher.Constraint("Symmetric", 15, 3, 51, 3, -1, 1))
sketch1.addConstraint(Sketcher.Constraint("Symmetric", 19, 3, 55, 3, -1, 1))
sketch1.addConstraint(Sketcher.Constraint("Symmetric", 21, 3, 57, 3, -1, 1))
sketch1.addConstraint(Sketcher.Constraint("Symmetric", 23, 3, 59, 3, -1, 1))
sketch1.addConstraint(Sketcher.Constraint("Symmetric", 27, 3, 63, 3, -1, 1))
sketch1.addConstraint(Sketcher.Constraint("Symmetric", 29, 3, 65, 3, -1, 1))
sketch1.addConstraint(Sketcher.Constraint("Symmetric", 33, 3, 69, 3, -1, 1))
sketch1.addConstraint(Sketcher.Constraint("Symmetric", 27, 3, 33, 3, -2))
sketch1.addConstraint(Sketcher.Constraint("Symmetric", 23, 3, 37, 3, -2))
sketch1.addConstraint(Sketcher.Constraint("Symmetric", 21, 3, 39, 3, -2))
sketch1.addConstraint(Sketcher.Constraint("Symmetric", 19, 3, 41, 3, -2))
sketch1.addConstraint(Sketcher.Constraint("Symmetric", 15, 3, 45, 3, -2))
sketch1.addConstraint(Sketcher.Constraint("Perpendicular", 10, 14))
sketch1.addConstraint(Sketcher.Constraint("Perpendicular", 2, 20))
sketch1.addConstraint(Sketcher.Constraint("Perpendicular", 4, 22))
sketch1.addConstraint(Sketcher.Constraint("Parallel", 14, 28))
sketch1.addConstraint(Sketcher.Constraint("Perpendicular", 28, 32))
sketch1.addConstraint(Sketcher.Constraint("Perpendicular", 20, 38))
sketch1.addConstraint(Sketcher.Constraint("Perpendicular", 22, 40))
sketch1.addConstraint(Sketcher.Constraint("Perpendicular", 46, 50))
sketch1.addConstraint(Sketcher.Constraint("Perpendicular", 38, 56))
sketch1.addConstraint(Sketcher.Constraint("Perpendicular", 40, 58))
sketch1.addConstraint(Sketcher.Constraint("Perpendicular", 64, 68))
sketch1.addConstraint(Sketcher.Constraint("Horizontal", 13, 3, 47, 3))
sketch1.addConstraint(Sketcher.Constraint("Horizontal", 57, 3, 3, 2))
sketch1.addConstraint(Sketcher.Constraint("Horizontal", 39, 3, 20, 2))
sketch1.addConstraint(Sketcher.Constraint("Vertical", 21, 3, 2, 2))
sketch1.addConstraint(Sketcher.Constraint("Equal", 54, 0))
sketch1.addConstraint(Sketcher.Constraint("Equal", 70, 8))
sketch1.addConstraint(Sketcher.Constraint("Equal", 66, 12))
sketch1.addConstraint(Sketcher.Constraint("Equal", 2, 20))
sketch1.addConstraint(Sketcher.Constraint("Equal", 14, 28))
sketch1.addConstraint(Sketcher.Constraint("Radius", 3, Q("0.06 in")))
sketch1.addConstraint(Sketcher.Constraint("Diameter", 72, Q("0.201 in")))
sketch1.addConstraint(Sketcher.Constraint("Angle", 2, Q("-2 deg")))
sketch1.addConstraint(Sketcher.Constraint("Radius", 1, Q("0.038 in")))
sketch1.addConstraint(Sketcher.Constraint("Radius", 9, Q("0.0420001 in")))
sketch1.addConstraint(Sketcher.Constraint("DistanceY", 2, 2, -1, 1, Q("0.5 in")))
sketch1.addConstraint(Sketcher.Constraint("DistanceX", -1, 1, 7, 3, Q("0.4510001 in")))
sketch1.addConstraint(Sketcher.Constraint("DistanceX", -1, 1, 1, 3, Q("0.1655002 in")))
sketch1.addConstraint(Sketcher.Constraint("DistanceX", -1, 1, 11, 3, Q("0.2195001 in")))
sketch1.addConstraint(Sketcher.Constraint("DistanceX", 30, 2, 30, 1, Q("5.008081 mm")))
pad1 = body.newObject("PartDesign::Pad", "Pad")
pad1.Profile = sketch1
pad1.Length = Q("3.25 in")

doc.recompute()
